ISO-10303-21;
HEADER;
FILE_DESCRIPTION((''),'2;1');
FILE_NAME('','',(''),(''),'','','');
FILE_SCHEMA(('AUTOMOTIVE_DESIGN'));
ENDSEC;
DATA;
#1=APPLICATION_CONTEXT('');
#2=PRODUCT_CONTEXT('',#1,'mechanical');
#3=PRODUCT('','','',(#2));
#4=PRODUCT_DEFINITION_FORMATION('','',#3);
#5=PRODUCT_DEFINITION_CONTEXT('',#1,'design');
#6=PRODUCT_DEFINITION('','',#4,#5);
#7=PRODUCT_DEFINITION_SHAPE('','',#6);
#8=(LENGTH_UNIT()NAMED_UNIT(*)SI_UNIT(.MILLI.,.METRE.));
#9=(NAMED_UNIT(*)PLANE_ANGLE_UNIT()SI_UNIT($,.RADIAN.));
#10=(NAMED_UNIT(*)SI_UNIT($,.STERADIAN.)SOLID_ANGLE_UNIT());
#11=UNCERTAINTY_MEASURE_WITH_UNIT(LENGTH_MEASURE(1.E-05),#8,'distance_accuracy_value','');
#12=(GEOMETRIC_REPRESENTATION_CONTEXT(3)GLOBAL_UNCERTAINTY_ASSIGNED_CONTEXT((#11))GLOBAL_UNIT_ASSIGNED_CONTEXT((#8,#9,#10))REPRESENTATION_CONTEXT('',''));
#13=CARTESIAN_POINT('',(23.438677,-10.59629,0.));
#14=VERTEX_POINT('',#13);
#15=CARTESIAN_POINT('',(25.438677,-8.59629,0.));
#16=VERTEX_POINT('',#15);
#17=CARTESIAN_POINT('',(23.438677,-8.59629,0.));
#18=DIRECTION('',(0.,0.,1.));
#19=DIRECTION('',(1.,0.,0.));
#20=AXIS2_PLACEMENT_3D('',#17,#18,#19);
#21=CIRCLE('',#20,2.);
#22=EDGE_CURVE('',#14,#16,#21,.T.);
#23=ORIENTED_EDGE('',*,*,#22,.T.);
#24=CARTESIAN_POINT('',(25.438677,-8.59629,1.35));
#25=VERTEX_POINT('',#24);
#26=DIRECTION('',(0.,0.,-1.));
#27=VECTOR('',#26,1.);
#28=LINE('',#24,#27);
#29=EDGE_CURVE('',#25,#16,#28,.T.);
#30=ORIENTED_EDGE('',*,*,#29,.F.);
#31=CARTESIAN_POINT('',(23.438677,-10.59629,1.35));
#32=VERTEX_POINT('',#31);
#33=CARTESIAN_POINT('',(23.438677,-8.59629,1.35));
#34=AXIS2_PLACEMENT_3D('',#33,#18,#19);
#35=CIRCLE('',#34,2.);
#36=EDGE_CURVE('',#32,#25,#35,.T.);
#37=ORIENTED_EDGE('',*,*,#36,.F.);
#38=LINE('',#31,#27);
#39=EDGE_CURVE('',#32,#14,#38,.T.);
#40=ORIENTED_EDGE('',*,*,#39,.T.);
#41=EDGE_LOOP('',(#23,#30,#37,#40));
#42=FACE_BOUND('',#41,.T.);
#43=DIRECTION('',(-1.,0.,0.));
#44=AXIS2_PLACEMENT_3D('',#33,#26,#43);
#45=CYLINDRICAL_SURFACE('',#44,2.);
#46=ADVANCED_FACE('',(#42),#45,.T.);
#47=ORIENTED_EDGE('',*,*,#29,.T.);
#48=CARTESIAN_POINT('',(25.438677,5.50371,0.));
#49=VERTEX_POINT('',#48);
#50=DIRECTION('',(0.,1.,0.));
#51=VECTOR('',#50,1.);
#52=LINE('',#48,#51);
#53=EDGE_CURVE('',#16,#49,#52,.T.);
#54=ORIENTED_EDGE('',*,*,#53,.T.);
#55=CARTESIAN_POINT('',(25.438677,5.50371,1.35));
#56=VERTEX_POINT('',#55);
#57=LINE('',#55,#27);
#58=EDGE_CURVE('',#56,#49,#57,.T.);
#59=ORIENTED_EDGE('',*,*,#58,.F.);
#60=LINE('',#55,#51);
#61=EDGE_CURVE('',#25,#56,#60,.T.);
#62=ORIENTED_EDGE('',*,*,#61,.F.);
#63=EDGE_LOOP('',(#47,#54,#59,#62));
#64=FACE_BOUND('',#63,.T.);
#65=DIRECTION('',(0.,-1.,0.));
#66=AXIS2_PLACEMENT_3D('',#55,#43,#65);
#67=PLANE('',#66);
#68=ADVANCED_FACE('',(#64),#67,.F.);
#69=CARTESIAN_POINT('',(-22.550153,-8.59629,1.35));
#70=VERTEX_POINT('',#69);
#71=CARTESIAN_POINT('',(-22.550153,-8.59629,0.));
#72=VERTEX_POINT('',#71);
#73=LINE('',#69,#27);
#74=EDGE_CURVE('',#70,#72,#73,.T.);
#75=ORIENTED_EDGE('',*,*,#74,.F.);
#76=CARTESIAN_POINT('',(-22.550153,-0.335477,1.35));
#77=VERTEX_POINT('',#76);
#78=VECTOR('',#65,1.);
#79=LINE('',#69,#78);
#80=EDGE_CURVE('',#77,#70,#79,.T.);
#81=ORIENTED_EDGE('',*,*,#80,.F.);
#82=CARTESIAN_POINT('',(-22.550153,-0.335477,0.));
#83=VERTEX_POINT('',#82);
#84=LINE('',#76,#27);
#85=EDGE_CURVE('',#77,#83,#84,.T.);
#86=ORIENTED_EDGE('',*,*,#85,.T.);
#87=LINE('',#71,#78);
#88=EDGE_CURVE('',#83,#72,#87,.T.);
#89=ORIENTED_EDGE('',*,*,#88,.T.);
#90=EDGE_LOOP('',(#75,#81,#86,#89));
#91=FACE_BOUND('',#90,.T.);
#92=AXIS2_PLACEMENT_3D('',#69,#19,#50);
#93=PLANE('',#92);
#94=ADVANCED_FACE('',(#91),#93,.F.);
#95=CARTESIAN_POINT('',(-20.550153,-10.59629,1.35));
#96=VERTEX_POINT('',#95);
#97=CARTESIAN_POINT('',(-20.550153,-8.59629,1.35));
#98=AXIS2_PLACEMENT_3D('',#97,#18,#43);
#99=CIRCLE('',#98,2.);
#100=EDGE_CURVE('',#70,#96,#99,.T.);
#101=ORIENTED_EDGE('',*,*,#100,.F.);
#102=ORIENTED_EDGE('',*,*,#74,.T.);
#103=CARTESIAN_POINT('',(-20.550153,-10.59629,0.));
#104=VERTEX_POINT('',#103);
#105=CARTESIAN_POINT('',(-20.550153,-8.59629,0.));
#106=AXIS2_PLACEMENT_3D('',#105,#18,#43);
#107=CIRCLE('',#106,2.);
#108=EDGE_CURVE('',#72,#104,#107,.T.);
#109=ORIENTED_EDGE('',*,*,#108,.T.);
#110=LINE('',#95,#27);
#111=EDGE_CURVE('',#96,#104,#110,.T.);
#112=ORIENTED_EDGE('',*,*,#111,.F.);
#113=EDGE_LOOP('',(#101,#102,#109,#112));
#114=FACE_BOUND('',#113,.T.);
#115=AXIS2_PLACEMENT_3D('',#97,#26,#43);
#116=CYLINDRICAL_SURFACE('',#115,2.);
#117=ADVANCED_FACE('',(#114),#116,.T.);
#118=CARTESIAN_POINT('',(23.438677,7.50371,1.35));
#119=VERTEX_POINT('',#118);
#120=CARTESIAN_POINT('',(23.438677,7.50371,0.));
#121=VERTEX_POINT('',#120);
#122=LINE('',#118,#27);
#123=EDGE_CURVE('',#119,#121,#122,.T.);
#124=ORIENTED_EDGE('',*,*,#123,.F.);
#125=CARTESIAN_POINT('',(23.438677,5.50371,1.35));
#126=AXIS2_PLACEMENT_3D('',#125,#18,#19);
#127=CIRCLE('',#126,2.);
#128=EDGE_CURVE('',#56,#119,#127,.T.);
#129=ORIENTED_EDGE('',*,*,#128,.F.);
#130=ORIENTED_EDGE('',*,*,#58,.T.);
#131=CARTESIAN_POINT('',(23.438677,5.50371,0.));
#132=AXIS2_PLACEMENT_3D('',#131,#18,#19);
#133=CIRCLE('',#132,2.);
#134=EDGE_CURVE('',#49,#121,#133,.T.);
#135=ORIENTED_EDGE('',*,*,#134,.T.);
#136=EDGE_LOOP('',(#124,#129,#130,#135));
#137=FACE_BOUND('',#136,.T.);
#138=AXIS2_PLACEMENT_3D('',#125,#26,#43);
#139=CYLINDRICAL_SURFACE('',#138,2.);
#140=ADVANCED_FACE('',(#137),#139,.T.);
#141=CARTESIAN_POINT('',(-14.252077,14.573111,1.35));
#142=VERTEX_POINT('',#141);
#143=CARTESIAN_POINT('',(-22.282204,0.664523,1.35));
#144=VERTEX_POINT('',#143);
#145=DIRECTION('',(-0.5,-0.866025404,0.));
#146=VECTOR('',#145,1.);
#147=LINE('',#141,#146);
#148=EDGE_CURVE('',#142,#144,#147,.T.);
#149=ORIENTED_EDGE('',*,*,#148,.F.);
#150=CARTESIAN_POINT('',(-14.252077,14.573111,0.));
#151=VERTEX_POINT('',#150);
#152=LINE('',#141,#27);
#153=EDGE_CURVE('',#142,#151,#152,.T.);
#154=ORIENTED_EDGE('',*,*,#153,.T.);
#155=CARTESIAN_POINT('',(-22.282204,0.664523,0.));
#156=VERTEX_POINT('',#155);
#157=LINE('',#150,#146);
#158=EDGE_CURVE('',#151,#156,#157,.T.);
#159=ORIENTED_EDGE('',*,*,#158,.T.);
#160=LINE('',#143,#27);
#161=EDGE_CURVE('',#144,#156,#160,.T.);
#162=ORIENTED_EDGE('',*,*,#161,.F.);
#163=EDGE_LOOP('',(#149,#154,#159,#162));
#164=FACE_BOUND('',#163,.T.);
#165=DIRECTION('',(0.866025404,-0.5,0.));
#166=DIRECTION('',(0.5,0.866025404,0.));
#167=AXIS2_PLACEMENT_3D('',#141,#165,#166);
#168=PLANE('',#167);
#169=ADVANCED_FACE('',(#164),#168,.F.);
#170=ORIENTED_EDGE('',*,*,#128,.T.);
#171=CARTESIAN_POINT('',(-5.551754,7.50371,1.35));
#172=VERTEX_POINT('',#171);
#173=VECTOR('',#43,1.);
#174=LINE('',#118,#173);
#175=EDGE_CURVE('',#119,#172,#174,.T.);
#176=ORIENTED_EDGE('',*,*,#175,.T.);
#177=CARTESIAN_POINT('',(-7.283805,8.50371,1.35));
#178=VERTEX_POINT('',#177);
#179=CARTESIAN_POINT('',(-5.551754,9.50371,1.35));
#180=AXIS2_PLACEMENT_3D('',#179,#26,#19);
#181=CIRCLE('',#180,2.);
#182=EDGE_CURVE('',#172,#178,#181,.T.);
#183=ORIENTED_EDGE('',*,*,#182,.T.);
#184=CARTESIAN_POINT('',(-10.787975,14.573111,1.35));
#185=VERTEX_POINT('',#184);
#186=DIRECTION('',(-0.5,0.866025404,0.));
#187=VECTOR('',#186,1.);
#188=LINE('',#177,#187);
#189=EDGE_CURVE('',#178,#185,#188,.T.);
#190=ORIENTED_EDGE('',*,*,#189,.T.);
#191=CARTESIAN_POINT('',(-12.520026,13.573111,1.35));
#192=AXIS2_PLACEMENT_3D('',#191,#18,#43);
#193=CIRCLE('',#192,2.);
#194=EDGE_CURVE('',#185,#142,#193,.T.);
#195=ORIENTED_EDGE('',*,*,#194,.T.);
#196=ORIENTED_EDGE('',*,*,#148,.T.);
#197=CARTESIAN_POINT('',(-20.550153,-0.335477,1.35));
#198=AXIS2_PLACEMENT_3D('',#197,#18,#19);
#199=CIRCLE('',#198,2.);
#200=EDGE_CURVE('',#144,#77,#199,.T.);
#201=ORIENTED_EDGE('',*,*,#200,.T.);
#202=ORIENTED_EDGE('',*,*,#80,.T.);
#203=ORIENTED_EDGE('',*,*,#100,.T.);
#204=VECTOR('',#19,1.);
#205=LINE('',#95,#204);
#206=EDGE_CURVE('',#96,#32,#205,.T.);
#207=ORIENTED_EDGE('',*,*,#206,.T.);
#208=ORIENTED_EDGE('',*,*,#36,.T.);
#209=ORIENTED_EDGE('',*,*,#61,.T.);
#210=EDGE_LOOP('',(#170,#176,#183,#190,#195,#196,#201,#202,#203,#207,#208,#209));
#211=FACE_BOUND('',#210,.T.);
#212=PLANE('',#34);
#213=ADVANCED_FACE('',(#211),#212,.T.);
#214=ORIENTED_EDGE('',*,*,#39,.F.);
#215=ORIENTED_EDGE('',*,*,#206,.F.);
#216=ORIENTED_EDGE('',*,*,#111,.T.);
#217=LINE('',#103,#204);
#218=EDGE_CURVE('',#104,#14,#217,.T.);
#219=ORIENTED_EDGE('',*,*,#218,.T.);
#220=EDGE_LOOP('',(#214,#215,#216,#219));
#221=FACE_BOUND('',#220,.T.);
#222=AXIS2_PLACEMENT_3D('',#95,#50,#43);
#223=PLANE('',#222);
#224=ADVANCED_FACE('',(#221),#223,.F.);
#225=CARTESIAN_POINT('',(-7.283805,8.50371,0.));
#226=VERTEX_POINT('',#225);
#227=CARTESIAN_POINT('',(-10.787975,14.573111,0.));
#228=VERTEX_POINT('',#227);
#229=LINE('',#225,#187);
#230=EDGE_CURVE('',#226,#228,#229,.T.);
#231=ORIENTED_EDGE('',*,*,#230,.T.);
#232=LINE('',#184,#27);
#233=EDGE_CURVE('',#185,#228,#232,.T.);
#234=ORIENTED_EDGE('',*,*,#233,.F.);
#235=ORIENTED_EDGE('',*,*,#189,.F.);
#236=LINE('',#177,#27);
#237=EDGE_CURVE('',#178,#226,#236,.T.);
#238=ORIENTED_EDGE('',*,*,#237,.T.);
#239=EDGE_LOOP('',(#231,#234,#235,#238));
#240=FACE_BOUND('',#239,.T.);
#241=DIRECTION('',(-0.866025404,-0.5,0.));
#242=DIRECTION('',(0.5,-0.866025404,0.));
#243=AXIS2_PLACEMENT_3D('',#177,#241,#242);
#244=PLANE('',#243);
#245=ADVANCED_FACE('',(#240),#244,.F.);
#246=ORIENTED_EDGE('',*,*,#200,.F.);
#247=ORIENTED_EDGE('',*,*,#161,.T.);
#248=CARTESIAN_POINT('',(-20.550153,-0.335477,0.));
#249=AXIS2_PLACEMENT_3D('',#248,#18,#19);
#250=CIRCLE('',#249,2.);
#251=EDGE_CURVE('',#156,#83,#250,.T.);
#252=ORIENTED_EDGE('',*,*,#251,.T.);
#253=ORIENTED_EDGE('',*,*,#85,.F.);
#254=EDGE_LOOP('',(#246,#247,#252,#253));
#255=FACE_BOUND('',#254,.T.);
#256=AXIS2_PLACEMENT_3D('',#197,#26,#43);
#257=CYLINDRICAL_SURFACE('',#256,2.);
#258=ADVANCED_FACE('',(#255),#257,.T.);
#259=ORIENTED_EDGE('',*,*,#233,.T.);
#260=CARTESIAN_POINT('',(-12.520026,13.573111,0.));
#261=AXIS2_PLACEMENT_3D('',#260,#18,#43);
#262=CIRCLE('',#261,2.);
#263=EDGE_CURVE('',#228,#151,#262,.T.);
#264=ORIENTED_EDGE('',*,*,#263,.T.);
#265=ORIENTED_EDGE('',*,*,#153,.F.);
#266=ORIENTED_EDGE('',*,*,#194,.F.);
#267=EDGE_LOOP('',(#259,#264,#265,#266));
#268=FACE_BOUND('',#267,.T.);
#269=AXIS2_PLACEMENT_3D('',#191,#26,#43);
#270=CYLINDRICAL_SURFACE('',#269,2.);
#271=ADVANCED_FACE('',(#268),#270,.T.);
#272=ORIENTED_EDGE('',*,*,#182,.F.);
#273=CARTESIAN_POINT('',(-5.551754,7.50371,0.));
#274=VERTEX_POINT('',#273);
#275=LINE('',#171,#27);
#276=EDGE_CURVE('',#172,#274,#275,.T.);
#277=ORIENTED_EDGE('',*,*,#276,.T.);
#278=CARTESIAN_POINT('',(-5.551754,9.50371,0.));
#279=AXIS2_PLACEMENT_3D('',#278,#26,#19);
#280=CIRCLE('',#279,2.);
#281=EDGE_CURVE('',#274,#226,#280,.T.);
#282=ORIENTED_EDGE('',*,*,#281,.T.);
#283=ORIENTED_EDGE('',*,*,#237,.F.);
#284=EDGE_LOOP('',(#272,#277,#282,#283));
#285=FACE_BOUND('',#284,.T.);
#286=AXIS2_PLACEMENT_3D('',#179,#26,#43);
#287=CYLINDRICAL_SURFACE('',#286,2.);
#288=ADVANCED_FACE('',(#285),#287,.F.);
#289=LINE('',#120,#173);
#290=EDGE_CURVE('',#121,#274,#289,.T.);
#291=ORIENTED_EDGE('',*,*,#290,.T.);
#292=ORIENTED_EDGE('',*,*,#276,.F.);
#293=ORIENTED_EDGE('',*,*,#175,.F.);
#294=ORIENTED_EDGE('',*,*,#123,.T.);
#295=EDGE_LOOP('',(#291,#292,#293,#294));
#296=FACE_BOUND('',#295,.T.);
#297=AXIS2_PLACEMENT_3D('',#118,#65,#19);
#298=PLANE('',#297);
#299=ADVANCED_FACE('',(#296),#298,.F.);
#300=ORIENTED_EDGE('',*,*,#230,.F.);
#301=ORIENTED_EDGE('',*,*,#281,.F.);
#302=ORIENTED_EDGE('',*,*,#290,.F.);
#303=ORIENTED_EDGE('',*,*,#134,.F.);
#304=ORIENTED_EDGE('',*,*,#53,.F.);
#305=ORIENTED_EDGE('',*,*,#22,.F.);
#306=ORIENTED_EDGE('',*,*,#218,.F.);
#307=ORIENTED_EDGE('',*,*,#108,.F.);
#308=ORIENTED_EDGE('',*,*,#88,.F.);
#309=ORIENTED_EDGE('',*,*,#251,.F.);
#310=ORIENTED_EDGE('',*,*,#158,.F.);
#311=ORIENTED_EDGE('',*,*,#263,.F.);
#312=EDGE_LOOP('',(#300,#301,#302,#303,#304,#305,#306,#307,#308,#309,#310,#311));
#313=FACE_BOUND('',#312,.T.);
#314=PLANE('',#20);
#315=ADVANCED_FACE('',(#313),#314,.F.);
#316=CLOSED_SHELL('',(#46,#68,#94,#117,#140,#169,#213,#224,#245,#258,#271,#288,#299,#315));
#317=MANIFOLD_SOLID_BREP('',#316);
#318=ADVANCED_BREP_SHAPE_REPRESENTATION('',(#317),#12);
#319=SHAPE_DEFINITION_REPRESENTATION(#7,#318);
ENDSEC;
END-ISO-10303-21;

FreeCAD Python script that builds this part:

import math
import FreeCAD as App
import Part
import Sketcher
from FreeCAD import Vector
Q = App.Units.Quantity

doc = App.newDocument("Part")
body = doc.addObject("PartDesign::Body", "Body")

# Sketch on XY plane
sketch1 = body.newObject("Sketcher::SketchObject", "Sketch")
sketch1.AttachmentSupport = (doc.getObject("XY_Plane"), [""])
sketch1.MapMode = "FlatFace"
sketch1.addGeometry([
    Part.LineSegment(Vector(-14.252077, 14.573111, 0), Vector(-22.282204, 0.664523, 0)),  # 0
    Part.ArcOfCircle(Part.Circle(Vector(-20.550153, -0.335477, 0), Vector(0, 0, 1), 2), math.radians(150), math.radians(180)),  # 1
    Part.LineSegment(Vector(-22.550153, -0.335477, 0), Vector(-22.550153, -8.59629, 0)),  # 2
    Part.ArcOfCircle(Part.Circle(Vector(-20.550153, -8.59629, 0), Vector(0, 0, 1), 2), math.radians(-180), math.radians(-90)),  # 3
    Part.LineSegment(Vector(-20.550153, -10.59629, 0), Vector(23.438677, -10.59629, 0)),  # 4
    Part.ArcOfCircle(Part.Circle(Vector(23.438677, -8.59629, 0), Vector(0, 0, 1), 2), math.radians(-90), math.radians(0)),  # 5
    Part.LineSegment(Vector(25.438677, -8.59629, 0), Vector(25.438677, 5.50371, 0)),  # 6
    Part.ArcOfCircle(Part.Circle(Vector(23.438677, 5.50371, 0), Vector(0, 0, 1), 2), math.radians(0), math.radians(90)),  # 7
    Part.LineSegment(Vector(23.438677, 7.50371, 0), Vector(-5.551754, 7.50371, 0)),  # 8
    Part.ArcOfCircle(Part.Circle(Vector(-5.551754, 9.50371, 0), Vector(0, 0, 1), 2), math.radians(-150), math.radians(-90)),  # 9
    Part.LineSegment(Vector(-7.283805, 8.50371, 0), Vector(-10.787975, 14.573111, 0)),  # 10
    Part.ArcOfCircle(Part.Circle(Vector(-12.520026, 13.573111, 0), Vector(0, 0, 1), 2), math.radians(30), math.radians(150)),  # 11
], False)
sketch1.addConstraint([
    Sketcher.Constraint("Tangent", 0, 2, 1, 1),
    Sketcher.Constraint("Tangent", 1, 2, 2, 1),
    Sketcher.Constraint("Tangent", 2, 2, 3, 1),
    Sketcher.Constraint("Tangent", 3, 2, 4, 1),
    Sketcher.Constraint("Tangent", 4, 2, 5, 1),
    Sketcher.Constraint("Tangent", 5, 2, 6, 1),
    Sketcher.Constraint("Tangent", 6, 2, 7, 1),
    Sketcher.Constraint("Tangent", 7, 2, 8, 1),
    Sketcher.Constraint("Tangent", 8, 2, 9, 2),
    Sketcher.Constraint("Tangent", 9, 1, 10, 1),
    Sketcher.Constraint("Tangent", 10, 2, 11, 1),
    Sketcher.Constraint("Tangent", 11, 2, 0, 1),
    Sketcher.Constraint("Vertical", 2),
    Sketcher.Constraint("Horizontal", 4),
    Sketcher.Constraint("Vertical", 6),
    Sketcher.Constraint("Horizontal", 8),
    Sketcher.Constraint("Equal", 1, 3),
    Sketcher.Constraint("Equal", 3, 5),
    Sketcher.Constraint("Equal", 5, 7),
    Sketcher.Constraint("Equal", 7, 9),
    Sketcher.Constraint("Equal", 9, 11),
    Sketcher.Constraint("Horizontal", 10, 2, 11, 2),
    Sketcher.Constraint("Radius", 1, Q("2 mm")),
    Sketcher.Constraint("Angle", 0, Q("-120 deg")),
    Sketcher.Constraint("DistanceY", 6, 1, 6, 2, Q("14.1 mm")),
    Sketcher.Constraint("DistanceX", 4, 1, 4, 2, Q("43.98883 mm")),
    Sketcher.Constraint("DistanceX", 8, 2, 8, 1, Q("28.990431 mm")),
    Sketcher.Constraint("DistanceY", 9, 3, 11, 3, Q("4.069401 mm")),
    Sketcher.Constraint("DistanceY", 3, 3, -1, 1, Q("8.59629 mm")),
    Sketcher.Constraint("DistanceX", 1, 3, -1, 1, Q("20.550153 mm")),
])
pad1 = body.newObject("PartDesign::Pad", "Pad")
pad1.Profile = sketch1
pad1.Length = 1.35

doc.recompute()
